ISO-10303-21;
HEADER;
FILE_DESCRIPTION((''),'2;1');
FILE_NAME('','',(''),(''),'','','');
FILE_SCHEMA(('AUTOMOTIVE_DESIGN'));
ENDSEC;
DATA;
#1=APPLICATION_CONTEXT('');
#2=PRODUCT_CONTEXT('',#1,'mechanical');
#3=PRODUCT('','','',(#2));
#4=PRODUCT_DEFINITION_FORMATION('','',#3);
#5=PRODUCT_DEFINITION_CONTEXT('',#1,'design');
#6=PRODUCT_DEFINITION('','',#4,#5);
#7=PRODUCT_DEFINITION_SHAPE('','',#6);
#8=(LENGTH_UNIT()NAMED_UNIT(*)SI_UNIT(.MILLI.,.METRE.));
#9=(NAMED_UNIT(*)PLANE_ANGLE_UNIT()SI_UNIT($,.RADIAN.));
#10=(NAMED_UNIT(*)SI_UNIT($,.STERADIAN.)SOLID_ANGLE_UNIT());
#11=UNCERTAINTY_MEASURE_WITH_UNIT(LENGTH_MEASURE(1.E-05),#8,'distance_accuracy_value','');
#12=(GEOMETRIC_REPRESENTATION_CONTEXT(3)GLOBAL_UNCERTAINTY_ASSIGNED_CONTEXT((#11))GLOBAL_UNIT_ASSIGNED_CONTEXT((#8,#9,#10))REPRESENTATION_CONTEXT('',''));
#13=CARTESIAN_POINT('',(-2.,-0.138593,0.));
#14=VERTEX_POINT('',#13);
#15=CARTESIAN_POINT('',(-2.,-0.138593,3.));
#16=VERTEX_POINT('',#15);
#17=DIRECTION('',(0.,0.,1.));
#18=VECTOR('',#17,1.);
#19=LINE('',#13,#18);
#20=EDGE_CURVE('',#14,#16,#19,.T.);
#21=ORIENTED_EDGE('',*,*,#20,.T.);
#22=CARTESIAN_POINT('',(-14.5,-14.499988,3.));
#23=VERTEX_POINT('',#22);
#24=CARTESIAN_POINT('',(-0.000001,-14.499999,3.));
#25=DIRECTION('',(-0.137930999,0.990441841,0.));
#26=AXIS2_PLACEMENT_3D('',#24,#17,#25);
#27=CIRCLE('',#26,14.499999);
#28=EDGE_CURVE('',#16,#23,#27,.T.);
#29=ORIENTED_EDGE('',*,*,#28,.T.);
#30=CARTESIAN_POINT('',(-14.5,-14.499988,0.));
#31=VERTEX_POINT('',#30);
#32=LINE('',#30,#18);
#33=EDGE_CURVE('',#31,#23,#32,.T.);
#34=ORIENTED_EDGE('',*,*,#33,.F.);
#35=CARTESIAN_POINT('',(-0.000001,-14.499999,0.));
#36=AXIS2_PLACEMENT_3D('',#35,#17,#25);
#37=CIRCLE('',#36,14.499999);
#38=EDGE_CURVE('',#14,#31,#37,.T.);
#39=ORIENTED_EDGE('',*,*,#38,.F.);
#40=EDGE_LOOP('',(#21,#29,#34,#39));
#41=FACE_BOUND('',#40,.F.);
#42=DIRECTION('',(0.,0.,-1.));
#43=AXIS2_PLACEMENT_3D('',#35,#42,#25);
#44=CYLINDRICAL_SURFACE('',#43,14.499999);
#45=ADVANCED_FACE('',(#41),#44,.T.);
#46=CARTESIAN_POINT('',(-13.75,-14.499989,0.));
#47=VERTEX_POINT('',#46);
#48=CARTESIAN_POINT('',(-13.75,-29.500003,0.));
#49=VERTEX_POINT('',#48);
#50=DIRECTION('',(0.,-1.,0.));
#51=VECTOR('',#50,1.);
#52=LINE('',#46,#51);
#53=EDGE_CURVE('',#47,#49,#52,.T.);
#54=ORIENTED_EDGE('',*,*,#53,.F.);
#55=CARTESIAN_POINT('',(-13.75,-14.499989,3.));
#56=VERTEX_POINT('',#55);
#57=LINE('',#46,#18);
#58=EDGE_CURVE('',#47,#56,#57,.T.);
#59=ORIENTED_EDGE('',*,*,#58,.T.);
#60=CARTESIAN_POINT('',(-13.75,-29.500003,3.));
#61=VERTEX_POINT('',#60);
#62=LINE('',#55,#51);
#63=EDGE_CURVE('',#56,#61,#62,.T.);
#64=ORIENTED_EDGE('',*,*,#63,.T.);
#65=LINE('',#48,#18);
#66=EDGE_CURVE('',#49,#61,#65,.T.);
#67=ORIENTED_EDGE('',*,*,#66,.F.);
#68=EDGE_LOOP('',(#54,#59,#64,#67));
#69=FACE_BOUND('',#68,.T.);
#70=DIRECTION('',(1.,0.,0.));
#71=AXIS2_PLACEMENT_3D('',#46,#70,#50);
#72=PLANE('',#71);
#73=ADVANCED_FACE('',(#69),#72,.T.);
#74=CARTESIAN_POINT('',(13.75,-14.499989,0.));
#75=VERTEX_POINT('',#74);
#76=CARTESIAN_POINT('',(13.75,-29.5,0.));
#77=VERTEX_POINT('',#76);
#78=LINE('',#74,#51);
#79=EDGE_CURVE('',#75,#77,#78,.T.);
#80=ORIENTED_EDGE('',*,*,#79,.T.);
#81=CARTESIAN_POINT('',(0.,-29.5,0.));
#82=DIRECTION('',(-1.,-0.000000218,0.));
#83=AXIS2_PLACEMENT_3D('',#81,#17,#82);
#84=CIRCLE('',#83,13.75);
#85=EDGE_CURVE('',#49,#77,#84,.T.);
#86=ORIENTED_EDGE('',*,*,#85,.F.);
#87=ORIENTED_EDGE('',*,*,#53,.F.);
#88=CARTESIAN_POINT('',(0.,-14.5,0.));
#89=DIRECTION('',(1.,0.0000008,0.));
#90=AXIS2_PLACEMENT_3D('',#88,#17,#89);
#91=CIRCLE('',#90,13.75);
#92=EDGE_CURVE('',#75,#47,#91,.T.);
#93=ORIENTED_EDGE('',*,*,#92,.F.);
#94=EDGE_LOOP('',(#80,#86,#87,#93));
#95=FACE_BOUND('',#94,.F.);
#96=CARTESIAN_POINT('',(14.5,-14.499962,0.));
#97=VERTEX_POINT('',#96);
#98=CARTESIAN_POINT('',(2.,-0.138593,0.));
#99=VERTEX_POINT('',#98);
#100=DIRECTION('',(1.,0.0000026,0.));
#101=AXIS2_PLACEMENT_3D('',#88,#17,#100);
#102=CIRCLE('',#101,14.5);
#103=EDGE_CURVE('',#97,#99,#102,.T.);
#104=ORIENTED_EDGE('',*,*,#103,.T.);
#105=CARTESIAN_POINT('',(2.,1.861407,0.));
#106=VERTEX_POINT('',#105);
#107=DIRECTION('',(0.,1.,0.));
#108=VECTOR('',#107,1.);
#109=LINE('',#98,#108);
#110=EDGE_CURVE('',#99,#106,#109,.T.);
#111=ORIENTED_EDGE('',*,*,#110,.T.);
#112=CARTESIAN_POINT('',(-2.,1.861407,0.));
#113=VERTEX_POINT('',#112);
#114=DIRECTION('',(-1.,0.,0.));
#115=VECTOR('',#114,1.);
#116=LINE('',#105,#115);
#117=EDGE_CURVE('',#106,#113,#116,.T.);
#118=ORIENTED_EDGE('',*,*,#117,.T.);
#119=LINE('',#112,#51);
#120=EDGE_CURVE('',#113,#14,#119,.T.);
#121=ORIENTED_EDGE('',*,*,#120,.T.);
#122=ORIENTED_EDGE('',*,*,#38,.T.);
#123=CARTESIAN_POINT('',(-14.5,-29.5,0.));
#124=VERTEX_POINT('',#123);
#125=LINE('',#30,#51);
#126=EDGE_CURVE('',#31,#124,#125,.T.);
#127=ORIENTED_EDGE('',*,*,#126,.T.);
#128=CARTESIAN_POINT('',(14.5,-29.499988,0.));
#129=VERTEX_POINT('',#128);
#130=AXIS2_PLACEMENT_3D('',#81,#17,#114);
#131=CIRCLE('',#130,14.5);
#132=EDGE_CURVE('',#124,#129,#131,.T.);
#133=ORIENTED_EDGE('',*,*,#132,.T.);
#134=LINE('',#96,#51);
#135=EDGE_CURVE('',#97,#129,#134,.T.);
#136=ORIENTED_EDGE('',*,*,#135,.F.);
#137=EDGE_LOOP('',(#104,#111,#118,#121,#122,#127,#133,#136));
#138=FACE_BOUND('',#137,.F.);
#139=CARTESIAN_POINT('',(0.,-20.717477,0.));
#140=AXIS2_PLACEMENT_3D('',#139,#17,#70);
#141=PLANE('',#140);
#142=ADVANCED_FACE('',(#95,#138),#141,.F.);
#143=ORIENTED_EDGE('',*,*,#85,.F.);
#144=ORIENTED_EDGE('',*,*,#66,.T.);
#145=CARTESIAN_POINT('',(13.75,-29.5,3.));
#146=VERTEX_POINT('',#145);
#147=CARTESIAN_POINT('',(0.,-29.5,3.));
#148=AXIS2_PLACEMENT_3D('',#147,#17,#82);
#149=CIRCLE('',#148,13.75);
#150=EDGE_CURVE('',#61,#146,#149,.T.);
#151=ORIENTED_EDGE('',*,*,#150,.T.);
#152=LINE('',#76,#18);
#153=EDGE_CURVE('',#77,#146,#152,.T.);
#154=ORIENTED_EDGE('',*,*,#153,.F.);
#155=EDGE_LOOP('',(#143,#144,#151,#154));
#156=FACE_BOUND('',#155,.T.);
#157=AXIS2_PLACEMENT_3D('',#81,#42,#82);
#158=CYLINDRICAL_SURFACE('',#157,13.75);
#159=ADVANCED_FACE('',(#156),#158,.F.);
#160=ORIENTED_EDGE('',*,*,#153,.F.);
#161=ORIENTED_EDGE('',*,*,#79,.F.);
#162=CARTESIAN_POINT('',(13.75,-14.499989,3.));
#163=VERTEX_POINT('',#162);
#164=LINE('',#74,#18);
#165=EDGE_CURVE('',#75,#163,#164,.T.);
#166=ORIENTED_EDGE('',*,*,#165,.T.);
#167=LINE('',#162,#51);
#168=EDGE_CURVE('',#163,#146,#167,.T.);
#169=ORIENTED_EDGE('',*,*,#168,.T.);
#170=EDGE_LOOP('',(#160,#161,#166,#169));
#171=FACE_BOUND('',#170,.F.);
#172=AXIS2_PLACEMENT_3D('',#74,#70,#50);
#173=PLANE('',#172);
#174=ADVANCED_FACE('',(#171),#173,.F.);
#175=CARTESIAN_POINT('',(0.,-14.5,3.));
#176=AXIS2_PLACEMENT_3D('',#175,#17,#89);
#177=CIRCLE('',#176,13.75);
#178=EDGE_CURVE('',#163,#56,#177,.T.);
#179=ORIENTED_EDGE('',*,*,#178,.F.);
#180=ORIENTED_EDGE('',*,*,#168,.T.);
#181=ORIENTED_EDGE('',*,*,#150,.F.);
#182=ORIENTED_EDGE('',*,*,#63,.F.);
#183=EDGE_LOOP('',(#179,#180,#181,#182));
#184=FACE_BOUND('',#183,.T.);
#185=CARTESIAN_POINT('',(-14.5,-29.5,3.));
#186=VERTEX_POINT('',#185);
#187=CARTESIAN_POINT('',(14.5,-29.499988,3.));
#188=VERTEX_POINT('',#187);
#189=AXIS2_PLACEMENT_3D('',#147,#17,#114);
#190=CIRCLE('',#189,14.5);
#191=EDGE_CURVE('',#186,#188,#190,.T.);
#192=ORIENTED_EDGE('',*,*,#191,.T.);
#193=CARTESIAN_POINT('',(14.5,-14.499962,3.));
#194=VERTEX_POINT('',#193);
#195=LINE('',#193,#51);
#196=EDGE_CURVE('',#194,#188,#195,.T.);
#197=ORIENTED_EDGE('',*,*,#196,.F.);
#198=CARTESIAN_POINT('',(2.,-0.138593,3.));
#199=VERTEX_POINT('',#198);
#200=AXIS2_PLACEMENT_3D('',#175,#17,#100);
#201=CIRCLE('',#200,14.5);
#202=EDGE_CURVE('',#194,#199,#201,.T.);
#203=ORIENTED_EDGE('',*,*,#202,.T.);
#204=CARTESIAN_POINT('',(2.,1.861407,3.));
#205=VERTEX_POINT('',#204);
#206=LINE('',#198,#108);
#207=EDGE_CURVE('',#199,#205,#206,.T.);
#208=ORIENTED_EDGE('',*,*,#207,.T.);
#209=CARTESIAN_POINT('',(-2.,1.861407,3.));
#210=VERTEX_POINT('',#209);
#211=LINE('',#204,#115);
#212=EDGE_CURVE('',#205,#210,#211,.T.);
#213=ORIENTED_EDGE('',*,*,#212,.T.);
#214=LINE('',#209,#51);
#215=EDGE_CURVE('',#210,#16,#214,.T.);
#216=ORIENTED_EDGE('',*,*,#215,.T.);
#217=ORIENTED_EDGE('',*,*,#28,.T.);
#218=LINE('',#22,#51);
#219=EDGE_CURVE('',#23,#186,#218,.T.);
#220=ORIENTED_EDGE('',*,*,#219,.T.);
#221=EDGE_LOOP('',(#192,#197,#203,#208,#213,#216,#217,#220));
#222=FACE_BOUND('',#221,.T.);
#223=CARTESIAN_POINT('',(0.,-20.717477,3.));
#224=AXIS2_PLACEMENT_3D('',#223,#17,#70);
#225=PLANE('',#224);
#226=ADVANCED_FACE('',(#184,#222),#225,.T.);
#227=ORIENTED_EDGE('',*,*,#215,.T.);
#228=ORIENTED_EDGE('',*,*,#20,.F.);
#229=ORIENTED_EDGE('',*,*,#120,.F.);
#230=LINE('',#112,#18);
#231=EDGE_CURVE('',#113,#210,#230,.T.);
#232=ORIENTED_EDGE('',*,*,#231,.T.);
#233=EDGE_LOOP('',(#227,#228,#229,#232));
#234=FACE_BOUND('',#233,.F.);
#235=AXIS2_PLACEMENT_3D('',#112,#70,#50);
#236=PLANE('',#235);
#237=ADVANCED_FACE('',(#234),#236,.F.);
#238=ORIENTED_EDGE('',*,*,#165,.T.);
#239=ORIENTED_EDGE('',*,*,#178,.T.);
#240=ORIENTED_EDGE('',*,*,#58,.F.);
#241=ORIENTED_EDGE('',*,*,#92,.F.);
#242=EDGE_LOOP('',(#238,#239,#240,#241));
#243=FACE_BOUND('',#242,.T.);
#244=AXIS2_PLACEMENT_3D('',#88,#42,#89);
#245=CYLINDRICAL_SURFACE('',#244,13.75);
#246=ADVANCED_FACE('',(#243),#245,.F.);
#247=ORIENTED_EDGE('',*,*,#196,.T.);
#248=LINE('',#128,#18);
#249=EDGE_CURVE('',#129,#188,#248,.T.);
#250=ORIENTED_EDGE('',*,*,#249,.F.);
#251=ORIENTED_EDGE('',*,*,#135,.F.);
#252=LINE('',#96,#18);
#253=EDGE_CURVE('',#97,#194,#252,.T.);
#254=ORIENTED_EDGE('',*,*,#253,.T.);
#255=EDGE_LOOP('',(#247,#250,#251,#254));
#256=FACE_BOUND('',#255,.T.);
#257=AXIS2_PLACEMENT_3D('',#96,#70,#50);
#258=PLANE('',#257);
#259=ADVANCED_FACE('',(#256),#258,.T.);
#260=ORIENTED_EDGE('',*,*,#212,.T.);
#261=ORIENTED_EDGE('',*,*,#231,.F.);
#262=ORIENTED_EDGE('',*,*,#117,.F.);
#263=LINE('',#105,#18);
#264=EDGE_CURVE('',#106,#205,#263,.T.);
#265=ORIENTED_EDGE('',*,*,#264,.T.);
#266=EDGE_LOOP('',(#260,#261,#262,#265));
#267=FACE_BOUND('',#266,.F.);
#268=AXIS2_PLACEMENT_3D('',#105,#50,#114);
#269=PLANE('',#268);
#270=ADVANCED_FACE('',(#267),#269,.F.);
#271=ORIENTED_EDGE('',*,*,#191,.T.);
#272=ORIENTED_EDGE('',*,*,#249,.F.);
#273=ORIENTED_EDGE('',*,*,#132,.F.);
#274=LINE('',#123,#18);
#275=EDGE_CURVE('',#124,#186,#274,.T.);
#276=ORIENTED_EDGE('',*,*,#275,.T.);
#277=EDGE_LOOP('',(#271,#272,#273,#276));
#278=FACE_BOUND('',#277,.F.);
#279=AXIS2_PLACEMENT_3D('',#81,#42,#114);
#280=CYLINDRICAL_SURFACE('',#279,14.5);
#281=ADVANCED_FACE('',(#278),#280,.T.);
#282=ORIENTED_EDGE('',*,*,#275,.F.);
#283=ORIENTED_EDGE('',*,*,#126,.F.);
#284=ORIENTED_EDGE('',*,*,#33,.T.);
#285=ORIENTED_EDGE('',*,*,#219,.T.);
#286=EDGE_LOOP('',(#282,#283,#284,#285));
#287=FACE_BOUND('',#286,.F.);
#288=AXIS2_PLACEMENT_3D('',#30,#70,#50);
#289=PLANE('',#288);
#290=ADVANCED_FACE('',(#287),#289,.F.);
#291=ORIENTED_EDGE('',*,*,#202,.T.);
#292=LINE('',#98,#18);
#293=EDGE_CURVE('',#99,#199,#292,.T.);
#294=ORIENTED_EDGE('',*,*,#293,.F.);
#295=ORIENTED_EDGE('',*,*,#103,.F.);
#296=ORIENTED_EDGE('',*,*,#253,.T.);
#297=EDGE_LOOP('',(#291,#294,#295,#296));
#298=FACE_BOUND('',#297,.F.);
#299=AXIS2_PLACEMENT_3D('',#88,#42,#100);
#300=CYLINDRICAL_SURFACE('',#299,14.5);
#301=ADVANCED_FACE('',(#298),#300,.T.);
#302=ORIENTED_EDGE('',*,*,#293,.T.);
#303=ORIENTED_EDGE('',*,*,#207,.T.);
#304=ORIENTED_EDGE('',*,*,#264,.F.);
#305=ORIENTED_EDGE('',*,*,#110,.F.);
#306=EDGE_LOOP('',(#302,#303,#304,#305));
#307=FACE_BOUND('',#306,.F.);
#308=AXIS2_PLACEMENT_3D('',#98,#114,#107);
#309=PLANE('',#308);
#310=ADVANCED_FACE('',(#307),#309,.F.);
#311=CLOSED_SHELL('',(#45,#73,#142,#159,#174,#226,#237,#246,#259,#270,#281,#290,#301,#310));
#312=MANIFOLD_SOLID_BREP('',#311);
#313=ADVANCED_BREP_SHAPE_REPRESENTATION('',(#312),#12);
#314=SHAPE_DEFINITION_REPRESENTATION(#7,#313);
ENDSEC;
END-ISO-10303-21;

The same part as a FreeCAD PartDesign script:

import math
import FreeCAD as App
import Part
import Sketcher

doc = App.newDocument("Part")
params = doc.addObject("Spreadsheet::Sheet", "Params")
for row, (alias, value) in enumerate([
    ("sketch1_radius", "14.499999 mm"),
    ("sketch1_width", "4 mm"),
    ("sketch1_height", "2 mm"),
    ("sketch1_radius2", "13.75 mm"),
    ("pad1_length", "3 mm"),
], start=1):
    params.set(f"A{row}", alias)
    params.set(f"B{row}", "=" + value)
    params.setAlias(f"B{row}", alias)

body = doc.addObject("PartDesign::Body", "Body")

# Sketch on XY plane
sketch1 = doc.addObject("Sketcher::SketchObject", "Sketch")
body.addObject(sketch1)
sketch1.AttachmentSupport = (doc.XY_Plane, [""])
sketch1.MapMode = "FlatFace"
sketch1.addGeometry([
    Part.ArcOfCircle(Part.Circle(App.Vector(0, -14.5, 0), App.Vector(0, 0, 1), 14.5), math.radians(98), math.radians(180)),  # 0
    Part.LineSegment(App.Vector(-14.5, -14.5, 0), App.Vector(-14.5, -29.5, 0)),  # 1
    Part.ArcOfCircle(Part.Circle(App.Vector(0, -29.5, 0), App.Vector(0, 0, 1), 14.5), math.radians(180), math.radians(360)),  # 2
    Part.LineSegment(App.Vector(14.5, -29.5, 0), App.Vector(14.5, -14.5, 0)),  # 3
    Part.ArcOfCircle(Part.Circle(App.Vector(0, -14.5, 0), App.Vector(0, 0, 1), 14.5), math.radians(0), math.radians(82)),  # 4
    Part.LineSegment(App.Vector(2, -0.1, 0), App.Vector(2, 1.9, 0)),  # 5
    Part.LineSegment(App.Vector(2, 1.9, 0), App.Vector(-2, 1.9, 0)),  # 6
    Part.LineSegment(App.Vector(-2, 1.9, 0), App.Vector(-2, -0.1, 0)),  # 7
    Part.ArcOfCircle(Part.Circle(App.Vector(0, -14.5, 0), App.Vector(0, 0, 1), 13.8), math.radians(0), math.radians(180)),  # 8
    Part.LineSegment(App.Vector(13.8, -14.5, 0), App.Vector(13.8, -29.5, 0)),  # 9
    Part.ArcOfCircle(Part.Circle(App.Vector(0, -29.5, 0), App.Vector(0, 0, 1), 13.8), math.radians(-180), math.radians(0)),  # 10
    Part.LineSegment(App.Vector(-13.8, -29.5, 0), App.Vector(-13.8, -14.5, 0)),  # 11
], False)
sketch1.addConstraint([
    Sketcher.Constraint("Tangent", 0, 2, 1, 1),
    Sketcher.Constraint("Tangent", 1, 2, 2, 1),
    Sketcher.Constraint("Tangent", 2, 2, 3, 1),
    Sketcher.Constraint("Coincident", 3, 2, 4, 1),
    Sketcher.Constraint("Coincident", 4, 2, 5, 1),
    Sketcher.Constraint("Coincident", 5, 2, 6, 1),
    Sketcher.Constraint("Coincident", 6, 2, 7, 1),
    Sketcher.Constraint("Coincident", 7, 2, 0, 1),
    Sketcher.Constraint("Tangent", 8, 1, 9, 1),
    Sketcher.Constraint("Tangent", 9, 2, 10, 2),
    Sketcher.Constraint("Tangent", 10, 1, 11, 1),
    Sketcher.Constraint("Tangent", 11, 2, 8, 2),
    Sketcher.Constraint("Vertical", 1),
    Sketcher.Constraint("Vertical", 3),
    Sketcher.Constraint("Vertical", 5),
    Sketcher.Constraint("Horizontal", 6),
    Sketcher.Constraint("Vertical", 7),
    Sketcher.Constraint("Vertical", 9),
    Sketcher.Constraint("Vertical", 11),
    Sketcher.Constraint("Coincident", 4, 3, 0, 3),
    Sketcher.Constraint("Coincident", 8, 3, 0, 3),
    Sketcher.Constraint("Coincident", 10, 3, 2, 3),
    Sketcher.Constraint("Symmetric", 4, 2, 7, 2, -2),
    Sketcher.Constraint("Radius", 0, 14.499999),
    Sketcher.Constraint("DistanceX", 6, 2, 6, 1, 4.0),
    Sketcher.Constraint("DistanceY", 5, 1, 5, 2, 2.0),
    Sketcher.Constraint("Radius", 8, 13.75),
    Sketcher.Constraint("DistanceY", 2, 3, 0, 3, 15.000001),
    Sketcher.Constraint("DistanceY", 0, 3, -1, 1, 14.499999),
    Sketcher.Constraint("DistanceY", 3, 1, 3, 2, 15.000026),
])
sketch1.setExpression("Constraints[23]", "Params.sketch1_radius")
sketch1.setExpression("Constraints[24]", "Params.sketch1_width")
sketch1.setExpression("Constraints[25]", "Params.sketch1_height")
sketch1.setExpression("Constraints[26]", "Params.sketch1_radius2")
pad1 = doc.addObject("PartDesign::Pad", "Pad")
body.addObject(pad1)
pad1.Profile = sketch1
pad1.setExpression("Length", "Params.pad1_length")

doc.recompute()
